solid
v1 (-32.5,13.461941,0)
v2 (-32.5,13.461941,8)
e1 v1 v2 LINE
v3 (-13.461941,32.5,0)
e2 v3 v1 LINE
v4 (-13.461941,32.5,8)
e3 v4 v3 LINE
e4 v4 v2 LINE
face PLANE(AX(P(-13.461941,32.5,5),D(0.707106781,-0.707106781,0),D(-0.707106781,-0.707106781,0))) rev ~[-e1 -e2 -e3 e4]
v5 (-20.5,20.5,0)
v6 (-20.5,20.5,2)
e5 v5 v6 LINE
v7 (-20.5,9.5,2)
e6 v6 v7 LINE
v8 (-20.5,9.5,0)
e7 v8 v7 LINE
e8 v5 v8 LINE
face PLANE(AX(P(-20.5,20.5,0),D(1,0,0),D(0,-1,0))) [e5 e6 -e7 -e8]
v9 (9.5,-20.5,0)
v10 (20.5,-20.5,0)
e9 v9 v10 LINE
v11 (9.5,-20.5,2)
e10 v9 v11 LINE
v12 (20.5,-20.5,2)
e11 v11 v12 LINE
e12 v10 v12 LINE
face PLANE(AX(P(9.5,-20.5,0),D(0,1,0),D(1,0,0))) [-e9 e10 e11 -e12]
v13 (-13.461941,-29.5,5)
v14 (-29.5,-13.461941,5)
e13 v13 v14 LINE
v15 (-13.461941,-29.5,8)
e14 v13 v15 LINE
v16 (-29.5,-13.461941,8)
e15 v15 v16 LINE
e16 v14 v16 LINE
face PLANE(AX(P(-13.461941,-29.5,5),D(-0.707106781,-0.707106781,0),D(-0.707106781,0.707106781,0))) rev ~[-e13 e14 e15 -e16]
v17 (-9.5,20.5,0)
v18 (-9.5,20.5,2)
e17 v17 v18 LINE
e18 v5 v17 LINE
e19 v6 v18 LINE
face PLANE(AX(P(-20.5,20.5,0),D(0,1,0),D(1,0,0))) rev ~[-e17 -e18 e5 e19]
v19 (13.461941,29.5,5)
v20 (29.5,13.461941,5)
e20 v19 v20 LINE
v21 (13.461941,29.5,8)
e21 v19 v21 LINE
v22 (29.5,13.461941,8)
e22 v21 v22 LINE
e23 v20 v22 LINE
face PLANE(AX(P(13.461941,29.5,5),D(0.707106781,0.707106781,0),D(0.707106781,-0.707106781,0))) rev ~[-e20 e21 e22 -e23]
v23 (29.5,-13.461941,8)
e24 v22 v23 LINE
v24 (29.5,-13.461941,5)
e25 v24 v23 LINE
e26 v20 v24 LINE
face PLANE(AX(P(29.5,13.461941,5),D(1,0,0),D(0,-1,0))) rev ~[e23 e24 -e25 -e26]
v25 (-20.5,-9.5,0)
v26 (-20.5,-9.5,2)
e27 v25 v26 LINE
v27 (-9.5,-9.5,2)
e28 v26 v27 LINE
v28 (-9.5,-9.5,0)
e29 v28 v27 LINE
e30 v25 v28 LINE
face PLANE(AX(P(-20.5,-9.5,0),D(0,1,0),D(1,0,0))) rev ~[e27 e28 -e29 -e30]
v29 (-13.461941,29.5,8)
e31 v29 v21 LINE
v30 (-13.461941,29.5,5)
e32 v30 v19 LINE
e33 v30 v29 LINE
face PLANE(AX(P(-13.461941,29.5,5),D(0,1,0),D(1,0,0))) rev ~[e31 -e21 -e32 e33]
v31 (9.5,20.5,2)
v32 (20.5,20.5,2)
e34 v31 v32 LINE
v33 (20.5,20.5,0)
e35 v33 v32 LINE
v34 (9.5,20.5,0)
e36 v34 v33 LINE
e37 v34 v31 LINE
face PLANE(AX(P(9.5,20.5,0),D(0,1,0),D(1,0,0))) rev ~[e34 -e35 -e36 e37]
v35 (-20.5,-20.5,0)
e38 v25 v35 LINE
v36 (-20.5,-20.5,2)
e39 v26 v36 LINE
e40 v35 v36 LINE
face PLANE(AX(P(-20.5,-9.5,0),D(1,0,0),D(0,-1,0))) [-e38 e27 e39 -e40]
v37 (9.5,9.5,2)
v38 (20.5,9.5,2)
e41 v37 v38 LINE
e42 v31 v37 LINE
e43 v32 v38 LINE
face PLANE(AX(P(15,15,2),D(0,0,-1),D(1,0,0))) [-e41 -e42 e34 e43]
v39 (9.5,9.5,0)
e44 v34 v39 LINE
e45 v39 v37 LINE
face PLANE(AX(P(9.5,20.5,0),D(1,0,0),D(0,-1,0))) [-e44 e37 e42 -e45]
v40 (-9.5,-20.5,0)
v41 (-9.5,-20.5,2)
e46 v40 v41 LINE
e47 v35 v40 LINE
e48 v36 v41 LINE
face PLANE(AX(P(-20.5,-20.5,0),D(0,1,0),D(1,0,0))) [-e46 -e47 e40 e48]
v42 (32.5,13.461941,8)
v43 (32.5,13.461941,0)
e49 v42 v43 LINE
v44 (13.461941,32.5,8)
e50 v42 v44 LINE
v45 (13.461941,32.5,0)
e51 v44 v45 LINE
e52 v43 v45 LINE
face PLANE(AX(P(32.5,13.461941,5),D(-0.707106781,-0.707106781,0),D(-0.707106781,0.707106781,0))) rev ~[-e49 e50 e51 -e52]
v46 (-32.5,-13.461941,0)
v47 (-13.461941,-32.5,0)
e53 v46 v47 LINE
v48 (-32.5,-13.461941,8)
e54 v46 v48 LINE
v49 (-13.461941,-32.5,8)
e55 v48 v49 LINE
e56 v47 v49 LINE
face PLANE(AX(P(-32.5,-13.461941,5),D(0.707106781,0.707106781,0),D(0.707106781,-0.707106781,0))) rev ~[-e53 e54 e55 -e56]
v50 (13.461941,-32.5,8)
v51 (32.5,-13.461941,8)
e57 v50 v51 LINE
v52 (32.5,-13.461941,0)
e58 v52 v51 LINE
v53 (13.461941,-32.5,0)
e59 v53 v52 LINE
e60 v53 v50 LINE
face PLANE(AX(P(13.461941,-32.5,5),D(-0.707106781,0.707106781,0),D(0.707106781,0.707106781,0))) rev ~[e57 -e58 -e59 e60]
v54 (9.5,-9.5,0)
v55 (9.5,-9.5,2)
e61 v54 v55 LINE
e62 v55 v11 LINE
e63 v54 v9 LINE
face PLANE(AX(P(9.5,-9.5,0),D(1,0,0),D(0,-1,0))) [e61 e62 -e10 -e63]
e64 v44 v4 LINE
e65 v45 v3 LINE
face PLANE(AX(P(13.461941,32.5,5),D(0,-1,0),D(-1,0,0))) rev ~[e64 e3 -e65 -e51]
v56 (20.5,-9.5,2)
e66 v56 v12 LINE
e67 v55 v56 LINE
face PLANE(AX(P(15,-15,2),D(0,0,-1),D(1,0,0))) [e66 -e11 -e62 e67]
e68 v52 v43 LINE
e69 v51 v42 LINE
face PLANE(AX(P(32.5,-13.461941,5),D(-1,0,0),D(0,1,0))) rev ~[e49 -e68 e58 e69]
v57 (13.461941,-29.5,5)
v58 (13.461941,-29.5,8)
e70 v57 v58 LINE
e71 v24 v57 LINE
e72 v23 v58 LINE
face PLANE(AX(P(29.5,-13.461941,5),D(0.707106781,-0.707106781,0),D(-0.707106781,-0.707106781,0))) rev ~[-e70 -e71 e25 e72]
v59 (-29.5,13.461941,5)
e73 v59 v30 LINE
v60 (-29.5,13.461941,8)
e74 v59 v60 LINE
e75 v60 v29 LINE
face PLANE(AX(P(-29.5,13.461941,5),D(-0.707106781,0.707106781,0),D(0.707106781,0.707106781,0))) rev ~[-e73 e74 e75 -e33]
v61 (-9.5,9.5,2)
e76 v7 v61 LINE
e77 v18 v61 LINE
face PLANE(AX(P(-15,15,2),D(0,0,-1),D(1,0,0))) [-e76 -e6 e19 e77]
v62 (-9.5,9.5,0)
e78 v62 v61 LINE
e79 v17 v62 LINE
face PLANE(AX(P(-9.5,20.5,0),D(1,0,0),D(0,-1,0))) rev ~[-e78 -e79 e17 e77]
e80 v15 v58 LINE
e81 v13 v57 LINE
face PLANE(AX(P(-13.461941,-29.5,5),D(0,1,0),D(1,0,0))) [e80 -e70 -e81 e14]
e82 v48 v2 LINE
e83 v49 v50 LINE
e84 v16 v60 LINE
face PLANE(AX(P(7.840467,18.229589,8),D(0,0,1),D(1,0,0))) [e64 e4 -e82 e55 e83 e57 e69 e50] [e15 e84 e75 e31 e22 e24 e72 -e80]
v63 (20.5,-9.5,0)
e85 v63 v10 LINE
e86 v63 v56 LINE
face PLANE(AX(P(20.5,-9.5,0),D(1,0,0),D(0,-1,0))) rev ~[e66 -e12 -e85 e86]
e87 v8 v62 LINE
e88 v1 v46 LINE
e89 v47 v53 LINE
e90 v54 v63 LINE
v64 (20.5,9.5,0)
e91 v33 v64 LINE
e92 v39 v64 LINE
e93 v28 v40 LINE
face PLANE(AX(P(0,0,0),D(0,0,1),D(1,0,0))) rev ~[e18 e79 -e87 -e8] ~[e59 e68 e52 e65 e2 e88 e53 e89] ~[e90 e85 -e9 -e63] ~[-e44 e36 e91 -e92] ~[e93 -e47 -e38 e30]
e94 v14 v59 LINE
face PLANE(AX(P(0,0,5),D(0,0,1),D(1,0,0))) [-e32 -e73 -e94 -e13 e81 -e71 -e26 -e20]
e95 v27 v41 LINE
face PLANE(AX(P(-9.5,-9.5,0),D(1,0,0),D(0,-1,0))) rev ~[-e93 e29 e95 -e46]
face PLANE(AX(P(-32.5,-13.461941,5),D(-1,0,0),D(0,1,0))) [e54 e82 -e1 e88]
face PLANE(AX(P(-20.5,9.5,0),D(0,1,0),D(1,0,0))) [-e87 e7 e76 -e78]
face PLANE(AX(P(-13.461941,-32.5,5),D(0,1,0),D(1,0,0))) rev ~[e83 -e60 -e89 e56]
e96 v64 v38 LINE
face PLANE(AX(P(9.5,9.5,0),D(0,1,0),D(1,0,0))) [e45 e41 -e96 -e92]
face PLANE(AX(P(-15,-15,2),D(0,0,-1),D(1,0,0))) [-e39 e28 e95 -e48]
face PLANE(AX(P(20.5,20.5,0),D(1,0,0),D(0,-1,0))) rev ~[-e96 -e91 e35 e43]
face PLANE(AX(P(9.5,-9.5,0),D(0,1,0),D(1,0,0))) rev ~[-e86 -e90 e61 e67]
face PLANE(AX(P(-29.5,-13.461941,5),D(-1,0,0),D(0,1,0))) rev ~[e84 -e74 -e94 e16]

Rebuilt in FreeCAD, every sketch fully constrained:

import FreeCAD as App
import Part
import Sketcher

V = App.Vector

doc = App.newDocument("Part")
body = doc.addObject("PartDesign::Body", "Body")

# Sketch on XY plane
sketch1 = doc.addObject("Sketcher::SketchObject", "Sketch")
body.addObject(sketch1)
sketch1.AttachmentSupport = (doc.XY_Plane, [""])
sketch1.MapMode = "FlatFace"
sketch1.addGeometry(Part.LineSegment(V(-13, -32, 0), V(13, -32, 0)), False)
sketch1.addGeometry(Part.LineSegment(V(13, -32, 0), V(32, -13, 0)), False)
sketch1.addGeometry(Part.LineSegment(V(32, -13, 0), V(32, 13, 0)), False)
sketch1.addGeometry(Part.LineSegment(V(32, 13, 0), V(13, 32, 0)), False)
sketch1.addGeometry(Part.LineSegment(V(13, 32, 0), V(-13, 32, 0)), False)
sketch1.addGeometry(Part.LineSegment(V(-13, 32, 0), V(-32, 13, 0)), False)
sketch1.addGeometry(Part.LineSegment(V(-32, 13, 0), V(-32, -13, 0)), False)
sketch1.addGeometry(Part.LineSegment(V(-32, -13, 0), V(-13, -32, 0)), False)
sketch1.addConstraint(Sketcher.Constraint("Coincident", 0, 2, 1, 1))
sketch1.addConstraint(Sketcher.Constraint("Coincident", 1, 2, 2, 1))
sketch1.addConstraint(Sketcher.Constraint("Coincident", 2, 2, 3, 1))
sketch1.addConstraint(Sketcher.Constraint("Coincident", 3, 2, 4, 1))
sketch1.addConstraint(Sketcher.Constraint("Coincident", 4, 2, 5, 1))
sketch1.addConstraint(Sketcher.Constraint("Coincident", 5, 2, 6, 1))
sketch1.addConstraint(Sketcher.Constraint("Coincident", 6, 2, 7, 1))
sketch1.addConstraint(Sketcher.Constraint("Coincident", 7, 2, 0, 1))
sketch1.addConstraint(Sketcher.Constraint("Horizontal", 0))
sketch1.addConstraint(Sketcher.Constraint("Vertical", 2))
sketch1.addConstraint(Sketcher.Constraint("Horizontal", 4))
sketch1.addConstraint(Sketcher.Constraint("Vertical", 6))
sketch1.addConstraint(Sketcher.Constraint("Symmetric", 0, 2, 4, 2, -1, 1))
sketch1.addConstraint(Sketcher.Constraint("Symmetric", 1, 2, 5, 2, -1, 1))
sketch1.addConstraint(Sketcher.Constraint("Perpendicular", 1, 3))
sketch1.addConstraint(Sketcher.Constraint("Perpendicular", 5, 7))
sketch1.addConstraint(Sketcher.Constraint("Horizontal", 2, 2, 5, 2))
sketch1.addConstraint(Sketcher.Constraint("Horizontal", 1, 2, 6, 2))
sketch1.addConstraint(Sketcher.Constraint("Vertical", 0, 2, 3, 2))
sketch1.addConstraint(Sketcher.Constraint("Equal", 4, 2))
sketch1.addConstraint(Sketcher.Constraint("DistanceY", 0, 2, 3, 2, 65.0))
sketch1.addConstraint(Sketcher.Constraint("DistanceX", 0, 1, 0, 2, 26.923882))
pad1 = doc.addObject("PartDesign::Pad", "Pad")
body.addObject(pad1)
pad1.Profile = sketch1
pad1.Length = 5

# Sketch on XY plane
sketch2 = doc.addObject("Sketcher::SketchObject", "Sketch001")
body.addObject(sketch2)
sketch2.AttachmentSupport = (doc.XY_Plane, [""])
sketch2.MapMode = "FlatFace"
sketch2.AttachmentOffset = App.Placement(V(0, 0, 5), App.Rotation())
sketch2.addGeometry(Part.LineSegment(V(-13, 32, 0), V(-32, 13, 0)), False)
sketch2.addGeometry(Part.LineSegment(V(-32, 13, 0), V(-32, -13, 0)), False)
sketch2.addGeometry(Part.LineSegment(V(-32, -13, 0), V(-13, -32, 0)), False)
sketch2.addGeometry(Part.LineSegment(V(-13, -32, 0), V(13, -32, 0)), False)
sketch2.addGeometry(Part.LineSegment(V(13, -32, 0), V(32, -13, 0)), False)
sketch2.addGeometry(Part.LineSegment(V(32, -13, 0), V(32, 13, 0)), False)
sketch2.addGeometry(Part.LineSegment(V(32, 13, 0), V(13, 32, 0)), False)
sketch2.addGeometry(Part.LineSegment(V(13, 32, 0), V(-13, 32, 0)), False)
sketch2.addGeometry(Part.LineSegment(V(13, -30, 0), V(-13, -30, 0)), False)
sketch2.addGeometry(Part.LineSegment(V(-13, -30, 0), V(-30, -13, 0)), False)
sketch2.addGeometry(Part.LineSegment(V(-30, -13, 0), V(-30, 13, 0)), False)
sketch2.addGeometry(Part.LineSegment(V(-30, 13, 0), V(-13, 30, 0)), False)
sketch2.addGeometry(Part.LineSegment(V(-13, 30, 0), V(13, 30, 0)), False)
sketch2.addGeometry(Part.LineSegment(V(13, 30, 0), V(30, 13, 0)), False)
sketch2.addGeometry(Part.LineSegment(V(30, 13, 0), V(30, -13, 0)), False)
sketch2.addGeometry(Part.LineSegment(V(30, -13, 0), V(13, -30, 0)), False)
sketch2.addConstraint(Sketcher.Constraint("Coincident", 0, 2, 1, 1))
sketch2.addConstraint(Sketcher.Constraint("Coincident", 1, 2, 2, 1))
sketch2.addConstraint(Sketcher.Constraint("Coincident", 2, 2, 3, 1))
sketch2.addConstraint(Sketcher.Constraint("Coincident", 3, 2, 4, 1))
sketch2.addConstraint(Sketcher.Constraint("Coincident", 4, 2, 5, 1))
sketch2.addConstraint(Sketcher.Constraint("Coincident", 5, 2, 6, 1))
sketch2.addConstraint(Sketcher.Constraint("Coincident", 6, 2, 7, 1))
sketch2.addConstraint(Sketcher.Constraint("Coincident", 7, 2, 0, 1))
sketch2.addConstraint(Sketcher.Constraint("Coincident", 8, 2, 9, 1))
sketch2.addConstraint(Sketcher.Constraint("Coincident", 9, 2, 10, 1))
sketch2.addConstraint(Sketcher.Constraint("Coincident", 10, 2, 11, 1))
sketch2.addConstraint(Sketcher.Constraint("Coincident", 11, 2, 12, 1))
sketch2.addConstraint(Sketcher.Constraint("Coincident", 12, 2, 13, 1))
sketch2.addConstraint(Sketcher.Constraint("Coincident", 13, 2, 14, 1))
sketch2.addConstraint(Sketcher.Constraint("Coincident", 14, 2, 15, 1))
sketch2.addConstraint(Sketcher.Constraint("Coincident", 15, 2, 8, 1))
sketch2.addConstraint(Sketcher.Constraint("Vertical", 1))
sketch2.addConstraint(Sketcher.Constraint("Horizontal", 3))
sketch2.addConstraint(Sketcher.Constraint("Vertical", 5))
sketch2.addConstraint(Sketcher.Constraint("Horizontal", 7))
sketch2.addConstraint(Sketcher.Constraint("Horizontal", 8))
sketch2.addConstraint(Sketcher.Constraint("Vertical", 10))
sketch2.addConstraint(Sketcher.Constraint("Horizontal", 12))
sketch2.addConstraint(Sketcher.Constraint("Vertical", 14))
sketch2.addConstraint(Sketcher.Constraint("Symmetric", 0, 2, 4, 2, -1, 1))
sketch2.addConstraint(Sketcher.Constraint("Symmetric", 2, 2, 6, 2, -1, 1))
sketch2.addConstraint(Sketcher.Constraint("Symmetric", 8, 2, 12, 2, -1, 1))
sketch2.addConstraint(Sketcher.Constraint("Symmetric", 9, 2, 13, 2, -1, 1))
sketch2.addConstraint(Sketcher.Constraint("Perpendicular", 0, 2))
sketch2.addConstraint(Sketcher.Constraint("Perpendicular", 2, 4))
sketch2.addConstraint(Sketcher.Constraint("Perpendicular", 4, 6))
sketch2.addConstraint(Sketcher.Constraint("Parallel", 6, 9))
sketch2.addConstraint(Sketcher.Constraint("Perpendicular", 9, 11))
sketch2.addConstraint(Sketcher.Constraint("Perpendicular", 13, 15))
sketch2.addConstraint(Sketcher.Constraint("Horizontal", 1, 2, 4, 2))
sketch2.addConstraint(Sketcher.Constraint("Horizontal", 4, 2, 9, 2))
sketch2.addConstraint(Sketcher.Constraint("Horizontal", 5, 2, 10, 2))
sketch2.addConstraint(Sketcher.Constraint("Horizontal", 9, 2, 14, 2))
sketch2.addConstraint(Sketcher.Constraint("Vertical", 3, 2, 6, 2))
sketch2.addConstraint(Sketcher.Constraint("Vertical", 7, 2, 8, 2))
sketch2.addConstraint(Sketcher.Constraint("Equal", 12, 1))
sketch2.addConstraint(Sketcher.Constraint("DistanceX", 1, 2, 4, 2, 65.0))
sketch2.addConstraint(Sketcher.Constraint("DistanceY", 2, 2, 8, 2, 3.0))
sketch2.addConstraint(Sketcher.Constraint("DistanceX", 3, 1, 3, 2, 26.923882))
pad2 = doc.addObject("PartDesign::Pad", "Pad001")
body.addObject(pad2)
pad2.Profile = sketch2
pad2.Length = 3

# Sketch on XY plane
sketch3 = doc.addObject("Sketcher::SketchObject", "Sketch002")
body.addObject(sketch3)
sketch3.AttachmentSupport = (doc.XY_Plane, [""])
sketch3.MapMode = "FlatFace"
sketch3.addGeometry(Part.LineSegment(V(-20, -20, 0), V(-20, -10, 0)), False)
sketch3.addGeometry(Part.LineSegment(V(-20, -10, 0), V(-10, -10, 0)), False)
sketch3.addGeometry(Part.LineSegment(V(-10, -10, 0), V(-10, -20, 0)), False)
sketch3.addGeometry(Part.LineSegment(V(-10, -20, 0), V(-20, -20, 0)), False)
sketch3.addGeometry(Part.LineSegment(V(10, -20, 0), V(10, -10, 0)), False)
sketch3.addGeometry(Part.LineSegment(V(10, -10, 0), V(20, -10, 0)), False)
sketch3.addGeometry(Part.LineSegment(V(20, -10, 0), V(20, -20, 0)), False)
sketch3.addGeometry(Part.LineSegment(V(20, -20, 0), V(10, -20, 0)), False)
sketch3.addGeometry(Part.LineSegment(V(10, 10, 0), V(10, 20, 0)), False)
sketch3.addGeometry(Part.LineSegment(V(10, 20, 0), V(20, 20, 0)), False)
sketch3.addGeometry(Part.LineSegment(V(20, 20, 0), V(20, 10, 0)), False)
sketch3.addGeometry(Part.LineSegment(V(20, 10, 0), V(10, 10, 0)), False)
sketch3.addGeometry(Part.LineSegment(V(-20, 10, 0), V(-20, 20, 0)), False)
sketch3.addGeometry(Part.LineSegment(V(-20, 20, 0), V(-10, 20, 0)), False)
sketch3.addGeometry(Part.LineSegment(V(-10, 20, 0), V(-10, 10, 0)), False)
sketch3.addGeometry(Part.LineSegment(V(-10, 10, 0), V(-20, 10, 0)), False)
sketch3.addConstraint(Sketcher.Constraint("Coincident", 0, 2, 1, 1))
sketch3.addConstraint(Sketcher.Constraint("Coincident", 1, 2, 2, 1))
sketch3.addConstraint(Sketcher.Constraint("Coincident", 2, 2, 3, 1))
sketch3.addConstraint(Sketcher.Constraint("Coincident", 3, 2, 0, 1))
sketch3.addConstraint(Sketcher.Constraint("Coincident", 4, 2, 5, 1))
sketch3.addConstraint(Sketcher.Constraint("Coincident", 5, 2, 6, 1))
sketch3.addConstraint(Sketcher.Constraint("Coincident", 6, 2, 7, 1))
sketch3.addConstraint(Sketcher.Constraint("Coincident", 7, 2, 4, 1))
sketch3.addConstraint(Sketcher.Constraint("Coincident", 8, 2, 9, 1))
sketch3.addConstraint(Sketcher.Constraint("Coincident", 9, 2, 10, 1))
sketch3.addConstraint(Sketcher.Constraint("Coincident", 10, 2, 11, 1))
sketch3.addConstraint(Sketcher.Constraint("Coincident", 11, 2, 8, 1))
sketch3.addConstraint(Sketcher.Constraint("Coincident", 12, 2, 13, 1))
sketch3.addConstraint(Sketcher.Constraint("Coincident", 13, 2, 14, 1))
sketch3.addConstraint(Sketcher.Constraint("Coincident", 14, 2, 15, 1))
sketch3.addConstraint(Sketcher.Constraint("Coincident", 15, 2, 12, 1))
sketch3.addConstraint(Sketcher.Constraint("Vertical", 0))
sketch3.addConstraint(Sketcher.Constraint("Horizontal", 1))
sketch3.addConstraint(Sketcher.Constraint("Vertical", 2))
sketch3.addConstraint(Sketcher.Constraint("Horizontal", 3))
sketch3.addConstraint(Sketcher.Constraint("Vertical", 4))
sketch3.addConstraint(Sketcher.Constraint("Horizontal", 5))
sketch3.addConstraint(Sketcher.Constraint("Vertical", 6))
sketch3.addConstraint(Sketcher.Constraint("Horizontal", 7))
sketch3.addConstraint(Sketcher.Constraint("Vertical", 8))
sketch3.addConstraint(Sketcher.Constraint("Horizontal", 9))
sketch3.addConstraint(Sketcher.Constraint("Vertical", 10))
sketch3.addConstraint(Sketcher.Constraint("Horizontal", 11))
sketch3.addConstraint(Sketcher.Constraint("Vertical", 12))
sketch3.addConstraint(Sketcher.Constraint("Horizontal", 13))
sketch3.addConstraint(Sketcher.Constraint("Vertical", 14))
sketch3.addConstraint(Sketcher.Constraint("Horizontal", 15))
sketch3.addConstraint(Sketcher.Constraint("Symmetric", 2, 2, 8, 2, -1, 1))
sketch3.addConstraint(Sketcher.Constraint("Symmetric", 0, 2, 10, 2, -1, 1))
sketch3.addConstraint(Sketcher.Constraint("Symmetric", 6, 2, 12, 2, -1, 1))
sketch3.addConstraint(Sketcher.Constraint("Symmetric", 4, 2, 14, 2, -1, 1))
sketch3.addConstraint(Sketcher.Constraint("Symmetric", 1, 2, 4, 2, -2))
sketch3.addConstraint(Sketcher.Constraint("Symmetric", 3, 2, 6, 2, -2))
sketch3.addConstraint(Sketcher.Constraint("Equal", 15, 0))
sketch3.addConstraint(Sketcher.Constraint("DistanceX", 1, 1, 1, 2, 11.0))
sketch3.addConstraint(Sketcher.Constraint("DistanceX", 1, 2, 4, 2, 19.0))
sketch3.addConstraint(Sketcher.Constraint("DistanceY", 4, 2, 8, 2, 30.0))
pocket1 = doc.addObject("PartDesign::Pocket", "Pocket")
body.addObject(pocket1)
pocket1.Profile = sketch3
pocket1.Length = 2
pocket1.Reversed = True

doc.recompute()
